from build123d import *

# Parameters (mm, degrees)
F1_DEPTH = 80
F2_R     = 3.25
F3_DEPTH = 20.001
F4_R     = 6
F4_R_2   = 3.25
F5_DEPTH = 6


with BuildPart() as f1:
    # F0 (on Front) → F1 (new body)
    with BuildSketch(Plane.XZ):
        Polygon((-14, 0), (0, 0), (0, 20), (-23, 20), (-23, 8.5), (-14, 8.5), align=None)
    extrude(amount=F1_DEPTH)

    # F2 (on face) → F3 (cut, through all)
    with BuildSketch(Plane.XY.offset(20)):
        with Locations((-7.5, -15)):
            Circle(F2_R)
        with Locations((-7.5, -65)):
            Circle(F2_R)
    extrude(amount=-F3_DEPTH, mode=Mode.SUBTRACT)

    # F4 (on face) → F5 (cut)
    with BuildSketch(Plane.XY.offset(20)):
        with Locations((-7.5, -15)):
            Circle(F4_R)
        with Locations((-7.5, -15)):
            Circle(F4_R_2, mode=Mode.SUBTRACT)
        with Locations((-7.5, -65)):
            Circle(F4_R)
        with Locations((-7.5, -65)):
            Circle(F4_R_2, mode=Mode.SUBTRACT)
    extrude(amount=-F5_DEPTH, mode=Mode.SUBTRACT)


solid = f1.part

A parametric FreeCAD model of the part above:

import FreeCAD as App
import Part
import Sketcher
from FreeCAD import Vector
Q = App.Units.Quantity

doc = App.newDocument("Part")
body = doc.addObject("PartDesign::Body", "Body")

sketch1 = body.newObject("Sketcher::SketchObject", "Sketch")
sketch1.AttachmentSupport = (doc.getObject("XZ_Plane"), [""])
sketch1.MapMode = "FlatFace"
sketch1.addGeometry([
    Part.LineSegment(Vector(-14, 0, 0), Vector(0, 0, 0)),
    Part.LineSegment(Vector(0, 0, 0), Vector(0, 20, 0)),
    Part.LineSegment(Vector(0, 20, 0), Vector(-23, 20, 0)),
    Part.LineSegment(Vector(-23, 20, 0), Vector(-23, 8, 0)),
    Part.LineSegment(Vector(-23, 8, 0), Vector(-14, 8, 0)),
    Part.LineSegment(Vector(-14, 8, 0), Vector(-14, 0, 0)),
], False)
sketch1.addConstraint([
    Sketcher.Constraint("Coincident", 0, 2, 1, 1),
    Sketcher.Constraint("Coincident", 1, 2, 2, 1),
    Sketcher.Constraint("Coincident", 2, 2, 3, 1),
    Sketcher.Constraint("Coincident", 3, 2, 4, 1),
    Sketcher.Constraint("Coincident", 4, 2, 5, 1),
    Sketcher.Constraint("Coincident", 5, 2, 0, 1),
    Sketcher.Constraint("Horizontal", 0),
    Sketcher.Constraint("Vertical", 1),
    Sketcher.Constraint("Horizontal", 2),
    Sketcher.Constraint("Vertical", 3),
    Sketcher.Constraint("Horizontal", 4),
    Sketcher.Constraint("Vertical", 5),
    Sketcher.Constraint("Coincident", 0, 2, -1, 1),
    Sketcher.Constraint("DistanceX", 0, 1, 0, 2, Q("14 mm")),
    Sketcher.Constraint("DistanceX", 2, 2, 2, 1, Q("23 mm")),
    Sketcher.Constraint("DistanceY", 1, 1, 1, 2, Q("20 mm")),
    Sketcher.Constraint("DistanceY", 3, 2, 3, 1, Q("11.5 mm")),
])
pad1 = body.newObject("PartDesign::Pad", "Pad")
pad1.Profile = sketch1
pad1.Length = 80

sketch2 = body.newObject("Sketcher::SketchObject", "Sketch001")
sketch2.AttachmentSupport = (doc.getObject("XY_Plane"), [""])
sketch2.MapMode = "FlatFace"
sketch2.AttachmentOffset = App.Placement(Vector(0, 0, 20), App.Rotation())
sketch2.addGeometry([
    Part.Circle(Vector(-7.5, -15, 0), Vector(0, 0, 1), 3.2),
    Part.Circle(Vector(-7.5, -65, 0), Vector(0, 0, 1), 3.2),
], False)
sketch2.addConstraint([
    Sketcher.Constraint("Equal", 0, 1),
    Sketcher.Constraint("Vertical", 0, 3, 1, 3),
    Sketcher.Constraint("Diameter", 0, Q("6.5 mm")),
    Sketcher.Constraint("DistanceY", 0, 3, -1, 1, Q("15 mm")),
    Sketcher.Constraint("DistanceY", 1, 3, -1, 1, Q("65 mm")),
    Sketcher.Constraint("DistanceX", 0, 3, -1, 1, Q("7.5 mm")),
])
pocket1 = body.newObject("PartDesign::Pocket", "Pocket")
pocket1.Profile = sketch2
pocket1.Type = "ThroughAll"

sketch3 = body.newObject("Sketcher::SketchObject", "Sketch002")
sketch3.AttachmentSupport = (doc.getObject("XY_Plane"), [""])
sketch3.MapMode = "FlatFace"
sketch3.AttachmentOffset = App.Placement(Vector(0, 0, 20), App.Rotation())
sketch3.addGeometry([
    Part.Circle(Vector(-7.5, -15, 0), Vector(0, 0, 1), 6),
    Part.Circle(Vector(-7.5, -15, 0), Vector(0, 0, 1), 3.2),
    Part.Circle(Vector(-7.5, -65, 0), Vector(0, 0, 1), 6),
    Part.Circle(Vector(-7.5, -65, 0), Vector(0, 0, 1), 3.2),
], False)
sketch3.addConstraint([
    Sketcher.Constraint("Coincident", 1, 3, 0, 3),
    Sketcher.Constraint("Coincident", 3, 3, 2, 3),
    Sketcher.Constraint("Equal", 0, 2),
    Sketcher.Constraint("Equal", 1, 3),
    Sketcher.Constraint("Vertical", 1, 3, 2, 3),
    Sketcher.Constraint("Diameter", 0, Q("12 mm")),
    Sketcher.Constraint("Diameter", 1, Q("6.5 mm")),
    Sketcher.Constraint("DistanceY", 0, 3, -1, 1, Q("15 mm")),
    Sketcher.Constraint("DistanceY", 2, 3, -1, 1, Q("65 mm")),
    Sketcher.Constraint("DistanceX", 0, 3, -1, 1, Q("7.5 mm")),
])
pocket2 = body.newObject("PartDesign::Pocket", "Pocket001")
pocket2.Profile = sketch3
pocket2.Length = 6

doc.recompute()
